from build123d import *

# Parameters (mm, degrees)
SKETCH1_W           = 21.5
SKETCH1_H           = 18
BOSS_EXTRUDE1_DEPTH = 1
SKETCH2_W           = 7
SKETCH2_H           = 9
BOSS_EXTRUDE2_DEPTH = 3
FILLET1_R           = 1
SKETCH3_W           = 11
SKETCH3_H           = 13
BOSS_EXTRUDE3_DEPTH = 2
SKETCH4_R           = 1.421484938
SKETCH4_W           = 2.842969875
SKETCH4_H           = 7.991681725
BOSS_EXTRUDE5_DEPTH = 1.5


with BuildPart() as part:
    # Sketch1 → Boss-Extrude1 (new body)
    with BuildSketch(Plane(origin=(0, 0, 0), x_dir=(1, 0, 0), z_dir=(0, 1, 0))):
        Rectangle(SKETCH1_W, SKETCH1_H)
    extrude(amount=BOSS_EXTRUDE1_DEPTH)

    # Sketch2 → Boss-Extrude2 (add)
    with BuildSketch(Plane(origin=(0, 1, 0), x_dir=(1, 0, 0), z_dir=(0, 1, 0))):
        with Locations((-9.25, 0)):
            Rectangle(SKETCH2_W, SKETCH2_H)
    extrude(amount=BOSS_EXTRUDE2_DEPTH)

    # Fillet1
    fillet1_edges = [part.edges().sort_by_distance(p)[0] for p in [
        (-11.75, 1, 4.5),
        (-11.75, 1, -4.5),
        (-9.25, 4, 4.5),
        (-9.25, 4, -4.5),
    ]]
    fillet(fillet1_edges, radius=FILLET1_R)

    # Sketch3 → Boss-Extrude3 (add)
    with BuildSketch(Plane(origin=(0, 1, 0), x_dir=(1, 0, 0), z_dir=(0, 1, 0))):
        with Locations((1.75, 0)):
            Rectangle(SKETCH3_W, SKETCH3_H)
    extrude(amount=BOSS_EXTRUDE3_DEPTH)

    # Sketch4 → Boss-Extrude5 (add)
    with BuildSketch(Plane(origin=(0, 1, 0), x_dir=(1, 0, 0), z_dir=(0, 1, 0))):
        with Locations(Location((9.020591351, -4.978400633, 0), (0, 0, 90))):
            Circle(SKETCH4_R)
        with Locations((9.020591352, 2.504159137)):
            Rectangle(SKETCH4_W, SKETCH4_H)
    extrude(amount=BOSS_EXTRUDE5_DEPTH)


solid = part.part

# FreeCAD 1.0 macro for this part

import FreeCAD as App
import Part
import Sketcher

V = App.Vector


def edges_at(feature, points):
    """Names of the edges that pass closest to the given points."""
    edges = feature.Shape.Edges
    near = lambda p: min(range(len(edges)), key=lambda i: edges[i].distToShape(Part.Vertex(*p))[0])
    return sorted({f"Edge{near(p) + 1}" for p in points})


def add_polygon(sketch, points):
    """Adds a closed chain of lines whose ends are joined by coincident constraints."""
    first, n = sketch.GeometryCount, len(points)
    for a, b in zip(points, points[1:] + points[:1]):
        sketch.addGeometry(Part.LineSegment(App.Vector(*a, 0), App.Vector(*b, 0)), False)
    for i in range(n):
        sketch.addConstraint(Sketcher.Constraint("Coincident", first + i, 2, first + (i + 1) % n, 1))

doc = App.newDocument("Part")
params = doc.addObject("Spreadsheet::Sheet", "Params")
for row, (alias, value) in enumerate([
    ("sketch1_height", "18 mm"),
    ("sketch1_width", "21.5 mm"),
    ("pad1_length", "1 mm"),
    ("sketch2_width", "7 mm"),
    ("sketch2_height", "9 mm"),
    ("pad2_length", "3 mm"),
    ("fillet_radius", "1 mm"),
    ("sketch3_width", "11 mm"),
    ("sketch3_height", "13 mm"),
    ("pad3_length", "2 mm"),
    ("pad4_length", "1.5 mm"),
], start=1):
    params.set(f"A{row}", alias)
    params.set(f"B{row}", "=" + value)
    params.setAlias(f"B{row}", alias)

body = doc.addObject("PartDesign::Body", "Body")

# Sketch on XZ plane
sketch1 = body.newObject("Sketcher::SketchObject", "Sketch")
sketch1.AttachmentSupport = (doc.getObject("XZ_Plane"), [""])
sketch1.MapMode = "FlatFace"
add_polygon(sketch1, [(-11, -9), (-11, 9), (11, 9), (11, -9)])  # lines 0-3
sketch1.addConstraint([
    Sketcher.Constraint("Vertical", 0),
    Sketcher.Constraint("Horizontal", 1),
    Sketcher.Constraint("Vertical", 2),
    Sketcher.Constraint("Horizontal", 3),
    Sketcher.Constraint("Symmetric", 0, 2, 2, 2, -1, 1),
    Sketcher.Constraint("DistanceY", 0, 1, 0, 2, 18.0),
    Sketcher.Constraint("DistanceX", 1, 1, 1, 2, 21.5),
])
sketch1.setExpression("Constraints[9]", "Params.sketch1_height")
sketch1.setExpression("Constraints[10]", "Params.sketch1_width")
pad1 = body.newObject("PartDesign::Pad", "Pad")
pad1.Profile = sketch1
pad1.setExpression("Length", "Params.pad1_length")
pad1.Reversed = True

# Sketch on XZ plane
sketch2 = body.newObject("Sketcher::SketchObject", "Sketch001")
sketch2.AttachmentSupport = (doc.getObject("XZ_Plane"), [""])
sketch2.MapMode = "FlatFace"
sketch2.AttachmentOffset = App.Placement(V(0, 0, -1), App.Rotation())
add_polygon(sketch2, [(-13, -4), (-13, 4), (-6, 4), (-6, -4)])  # lines 0-3
sketch2.addConstraint([
    Sketcher.Constraint("Vertical", 0),
    Sketcher.Constraint("Horizontal", 1),
    Sketcher.Constraint("Vertical", 2),
    Sketcher.Constraint("Horizontal", 3),
    Sketcher.Constraint("DistanceX", 1, 1, 1, 2, 7.0),
    Sketcher.Constraint("DistanceY", 0, 1, 0, 2, 9.0),
    Sketcher.Constraint("DistanceY", -1, 1, 0, 2, 4.5),
    Sketcher.Constraint("DistanceX", 0, 2, -1, 1, 12.75),
])
sketch2.setExpression("Constraints[8]", "Params.sketch2_width")
sketch2.setExpression("Constraints[9]", "Params.sketch2_height")
pad2 = body.newObject("PartDesign::Pad", "Pad001")
pad2.Profile = sketch2
pad2.setExpression("Length", "Params.pad2_length")
pad2.Reversed = True
doc.recompute()

fillet = body.newObject("PartDesign::Fillet", "Fillet")
fillet.Base = (pad2, edges_at(pad2, [
    (-11.75, 1, 4.5),
    (-11.75, 1, -4.5),
    (-9.25, 4, 4.5),
    (-9.25, 4, -4.5),
]))
fillet.setExpression("Radius", "Params.fillet_radius")

# Sketch on XZ plane
sketch3 = body.newObject("Sketcher::SketchObject", "Sketch002")
sketch3.AttachmentSupport = (doc.getObject("XZ_Plane"), [""])
sketch3.MapMode = "FlatFace"
sketch3.AttachmentOffset = App.Placement(V(0, 0, -1), App.Rotation())
add_polygon(sketch3, [(-4, -6), (-4, 6), (7, 6), (7, -6)])  # lines 0-3
sketch3.addConstraint([
    Sketcher.Constraint("Vertical", 0),
    Sketcher.Constraint("Horizontal", 1),
    Sketcher.Constraint("Vertical", 2),
    Sketcher.Constraint("Horizontal", 3),
    Sketcher.Constraint("DistanceX", 1, 1, 1, 2, 11.0),
    Sketcher.Constraint("DistanceY", 0, 1, 0, 2, 13.0),
    Sketcher.Constraint("DistanceY", -1, 1, 0, 2, 6.5),
    Sketcher.Constraint("DistanceX", 0, 2, -1, 1, 3.75),
])
sketch3.setExpression("Constraints[8]", "Params.sketch3_width")
sketch3.setExpression("Constraints[9]", "Params.sketch3_height")
pad3 = body.newObject("PartDesign::Pad", "Pad002")
pad3.Profile = sketch3
pad3.setExpression("Length", "Params.pad3_length")
pad3.Reversed = True

# Sketch on XZ plane
sketch4 = body.newObject("Sketcher::SketchObject", "Sketch003")
sketch4.AttachmentSupport = (doc.getObject("XZ_Plane"), [""])
sketch4.MapMode = "FlatFace"
sketch4.AttachmentOffset = App.Placement(V(0, 0, -1), App.Rotation())
sketch4.addGeometry(Part.Circle(V(9, 5, 0), V(0, 0, 1), 1.4), False)  # 0
add_polygon(sketch4, [(7.6, -6.5), (7.6, 1.5), (10.4, 1.5), (10.4, -6.5)])  # lines 1-4
sketch4.addConstraint([
    Sketcher.Constraint("Vertical", 1),
    Sketcher.Constraint("Horizontal", 2),
    Sketcher.Constraint("Vertical", 3),
    Sketcher.Constraint("Horizontal", 4),
    Sketcher.Constraint("DistanceY", 3, 2, -1, 1, 6.5),
    Sketcher.Constraint("Diameter", 0, 2.84297),
    Sketcher.Constraint("DistanceX", 2, 1, 2, 2, 2.84297),
    Sketcher.Constraint("DistanceY", 1, 1, 1, 2, 7.991682),
    Sketcher.Constraint("DistanceY", -1, 1, 0, 3, 4.978401),
    Sketcher.Constraint("DistanceX", -1, 1, 0, 3, 9.020591),
    Sketcher.Constraint("DistanceX", -1, 1, 1, 2, 7.599106),
])
pad4 = body.newObject("PartDesign::Pad", "Pad003")
pad4.Profile = sketch4
pad4.setExpression("Length", "Params.pad4_length")
pad4.Reversed = True

doc.recompute()
